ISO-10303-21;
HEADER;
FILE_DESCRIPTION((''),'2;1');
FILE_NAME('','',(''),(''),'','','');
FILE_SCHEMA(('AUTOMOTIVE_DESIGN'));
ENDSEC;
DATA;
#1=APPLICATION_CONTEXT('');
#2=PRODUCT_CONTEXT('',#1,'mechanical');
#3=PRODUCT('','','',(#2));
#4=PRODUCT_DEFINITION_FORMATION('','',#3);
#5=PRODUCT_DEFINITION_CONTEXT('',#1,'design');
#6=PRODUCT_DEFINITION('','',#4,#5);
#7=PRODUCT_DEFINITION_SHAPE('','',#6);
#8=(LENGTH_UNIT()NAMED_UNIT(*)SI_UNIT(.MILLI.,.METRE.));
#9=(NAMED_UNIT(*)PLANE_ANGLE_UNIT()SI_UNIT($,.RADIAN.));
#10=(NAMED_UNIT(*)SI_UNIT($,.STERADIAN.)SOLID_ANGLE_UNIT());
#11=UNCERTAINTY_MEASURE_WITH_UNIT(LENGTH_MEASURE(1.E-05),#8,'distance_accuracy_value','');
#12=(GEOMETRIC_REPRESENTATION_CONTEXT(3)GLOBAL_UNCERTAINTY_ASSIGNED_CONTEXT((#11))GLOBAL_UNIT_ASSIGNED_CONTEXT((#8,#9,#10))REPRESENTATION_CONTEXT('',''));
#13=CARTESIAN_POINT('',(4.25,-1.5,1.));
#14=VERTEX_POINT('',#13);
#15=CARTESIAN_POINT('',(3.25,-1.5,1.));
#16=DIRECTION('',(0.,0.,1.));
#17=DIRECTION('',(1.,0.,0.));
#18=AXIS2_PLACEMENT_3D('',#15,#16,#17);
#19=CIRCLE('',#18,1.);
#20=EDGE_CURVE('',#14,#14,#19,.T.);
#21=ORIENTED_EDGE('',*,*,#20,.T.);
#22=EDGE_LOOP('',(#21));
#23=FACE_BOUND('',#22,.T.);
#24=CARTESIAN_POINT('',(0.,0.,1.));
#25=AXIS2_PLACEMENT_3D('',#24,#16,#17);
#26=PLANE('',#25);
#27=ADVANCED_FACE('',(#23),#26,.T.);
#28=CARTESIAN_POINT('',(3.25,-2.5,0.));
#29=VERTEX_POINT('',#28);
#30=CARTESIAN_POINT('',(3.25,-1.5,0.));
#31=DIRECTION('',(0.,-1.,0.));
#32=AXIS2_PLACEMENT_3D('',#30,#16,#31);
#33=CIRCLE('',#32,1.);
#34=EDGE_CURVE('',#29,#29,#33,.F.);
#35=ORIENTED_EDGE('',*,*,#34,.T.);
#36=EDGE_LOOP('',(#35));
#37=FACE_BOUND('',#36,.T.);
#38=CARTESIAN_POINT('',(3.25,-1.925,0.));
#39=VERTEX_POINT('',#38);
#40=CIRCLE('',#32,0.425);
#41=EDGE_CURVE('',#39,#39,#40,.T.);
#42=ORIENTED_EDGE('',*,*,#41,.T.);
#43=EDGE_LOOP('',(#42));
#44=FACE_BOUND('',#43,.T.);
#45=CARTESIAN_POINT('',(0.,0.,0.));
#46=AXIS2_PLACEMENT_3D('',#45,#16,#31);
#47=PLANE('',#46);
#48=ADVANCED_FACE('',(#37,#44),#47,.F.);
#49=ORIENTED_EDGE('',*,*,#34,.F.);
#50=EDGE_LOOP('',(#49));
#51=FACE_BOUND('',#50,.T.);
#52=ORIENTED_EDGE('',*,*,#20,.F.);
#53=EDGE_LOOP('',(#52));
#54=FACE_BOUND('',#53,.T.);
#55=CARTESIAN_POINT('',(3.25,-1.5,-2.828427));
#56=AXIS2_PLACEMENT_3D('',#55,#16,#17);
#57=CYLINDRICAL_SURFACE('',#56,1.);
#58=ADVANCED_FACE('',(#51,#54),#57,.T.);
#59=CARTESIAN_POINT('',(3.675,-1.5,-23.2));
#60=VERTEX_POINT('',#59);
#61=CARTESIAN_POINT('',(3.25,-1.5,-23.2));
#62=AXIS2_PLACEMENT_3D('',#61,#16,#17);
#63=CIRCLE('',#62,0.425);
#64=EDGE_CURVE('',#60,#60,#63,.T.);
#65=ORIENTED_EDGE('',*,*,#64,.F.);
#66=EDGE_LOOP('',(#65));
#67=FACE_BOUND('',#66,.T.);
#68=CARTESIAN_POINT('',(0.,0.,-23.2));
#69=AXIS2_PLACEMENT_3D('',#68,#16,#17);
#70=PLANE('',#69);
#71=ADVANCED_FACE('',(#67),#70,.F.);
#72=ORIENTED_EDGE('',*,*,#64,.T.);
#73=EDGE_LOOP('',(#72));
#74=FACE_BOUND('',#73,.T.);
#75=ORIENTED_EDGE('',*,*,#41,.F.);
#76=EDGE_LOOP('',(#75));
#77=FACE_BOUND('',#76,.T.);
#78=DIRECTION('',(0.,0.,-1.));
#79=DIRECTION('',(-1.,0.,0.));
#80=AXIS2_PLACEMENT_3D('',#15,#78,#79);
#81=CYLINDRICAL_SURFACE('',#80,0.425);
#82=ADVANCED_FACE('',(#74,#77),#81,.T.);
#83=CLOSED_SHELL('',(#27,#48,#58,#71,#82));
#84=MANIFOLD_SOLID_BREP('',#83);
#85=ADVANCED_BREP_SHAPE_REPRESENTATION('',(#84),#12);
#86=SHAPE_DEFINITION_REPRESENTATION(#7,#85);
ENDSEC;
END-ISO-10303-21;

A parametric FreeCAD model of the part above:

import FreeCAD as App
import Part
import Sketcher

V = App.Vector

doc = App.newDocument("Part")
body = doc.addObject("PartDesign::Body", "Body")

# Sketch on XY plane
sketch1 = body.newObject("Sketcher::SketchObject", "Sketch")
sketch1.AttachmentSupport = (doc.getObject("XY_Plane"), [""])
sketch1.MapMode = "FlatFace"
sketch1.addGeometry(Part.Circle(V(3.25, -1.5, 0), V(0, 0, 1), 0.42), False)
sketch1.addConstraint(Sketcher.Constraint("Diameter", 0, 0.85))
sketch1.addConstraint(Sketcher.Constraint("DistanceY", 0, 3, -1, 1, 1.5))
sketch1.addConstraint(Sketcher.Constraint("DistanceX", -1, 1, 0, 3, 3.25))
pad1 = body.newObject("PartDesign::Pad", "Pad")
pad1.Profile = sketch1
pad1.Type = "TwoLengths"
pad1.Length = 1
pad1.Length2 = 23.2

# Sketch on XY plane
sketch2 = body.newObject("Sketcher::SketchObject", "Sketch001")
sketch2.AttachmentSupport = (doc.getObject("XY_Plane"), [""])
sketch2.MapMode = "FlatFace"
sketch2.AttachmentOffset = App.Placement(V(0, 0, 1), App.Rotation())
sketch2.addGeometry(Part.Circle(V(3.2, -1.5, 0), V(0, 0, 1), 1), False)
sketch2.addConstraint(Sketcher.Constraint("Diameter", 0, 2.0))
sketch2.addConstraint(Sketcher.Constraint("DistanceY", 0, 3, -1, 1, 1.5))
sketch2.addConstraint(Sketcher.Constraint("DistanceX", -1, 1, 0, 3, 3.25))
pad2 = body.newObject("PartDesign::Pad", "Pad001")
pad2.Profile = sketch2
pad2.Length = 1
pad2.Reversed = True

doc.recompute()
